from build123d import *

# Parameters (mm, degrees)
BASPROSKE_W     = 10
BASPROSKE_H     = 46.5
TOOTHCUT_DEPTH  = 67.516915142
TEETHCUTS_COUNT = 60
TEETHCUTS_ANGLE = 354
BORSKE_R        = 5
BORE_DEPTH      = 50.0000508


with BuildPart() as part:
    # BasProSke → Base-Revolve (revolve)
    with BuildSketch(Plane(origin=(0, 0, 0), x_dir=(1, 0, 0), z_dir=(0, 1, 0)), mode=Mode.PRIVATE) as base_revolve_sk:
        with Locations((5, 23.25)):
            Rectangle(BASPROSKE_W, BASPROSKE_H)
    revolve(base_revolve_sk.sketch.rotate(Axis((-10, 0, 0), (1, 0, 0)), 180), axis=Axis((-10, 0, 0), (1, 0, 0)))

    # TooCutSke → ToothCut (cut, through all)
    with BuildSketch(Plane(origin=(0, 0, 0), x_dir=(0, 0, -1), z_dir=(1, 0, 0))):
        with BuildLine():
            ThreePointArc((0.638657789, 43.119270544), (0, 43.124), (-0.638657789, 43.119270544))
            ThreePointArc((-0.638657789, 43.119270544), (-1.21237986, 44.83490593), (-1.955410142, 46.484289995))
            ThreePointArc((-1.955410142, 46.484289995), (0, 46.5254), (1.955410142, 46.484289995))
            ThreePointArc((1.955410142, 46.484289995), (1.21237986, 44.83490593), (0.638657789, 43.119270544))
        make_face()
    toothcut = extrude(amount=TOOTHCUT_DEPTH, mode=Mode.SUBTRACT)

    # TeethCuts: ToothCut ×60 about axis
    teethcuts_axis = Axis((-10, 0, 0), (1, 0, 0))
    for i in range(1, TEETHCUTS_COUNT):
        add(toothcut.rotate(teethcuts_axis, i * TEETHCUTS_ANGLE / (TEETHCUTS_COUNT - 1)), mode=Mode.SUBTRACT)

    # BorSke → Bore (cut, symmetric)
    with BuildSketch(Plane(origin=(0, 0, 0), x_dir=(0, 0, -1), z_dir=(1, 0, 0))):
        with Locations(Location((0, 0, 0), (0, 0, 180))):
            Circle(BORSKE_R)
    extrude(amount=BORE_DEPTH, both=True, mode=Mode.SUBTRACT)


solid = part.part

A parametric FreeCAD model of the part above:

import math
import FreeCAD as App
import Part
import Sketcher
Q = App.Units.Quantity


def add_polygon(sketch, points):
    """Adds a closed chain of lines whose ends are joined by coincident constraints."""
    first, n = sketch.GeometryCount, len(points)
    for a, b in zip(points, points[1:] + points[:1]):
        sketch.addGeometry(Part.LineSegment(App.Vector(*a, 0), App.Vector(*b, 0)), False)
    for i in range(n):
        sketch.addConstraint(Sketcher.Constraint("Coincident", first + i, 2, first + (i + 1) % n, 1))

doc = App.newDocument("Part")
params = doc.addObject("Spreadsheet::Sheet", "Params")
for row, (alias, value) in enumerate([
    ("sketch1_width", "10 mm"),
    ("sketch1_height", "46.5 mm"),
    ("revolution_angle", "360 deg"),
    ("sketch2_radius", "18 mm"),
    ("sketch3_diameter", "10 mm"),
    ("pocket2_length", "100.000102 mm"),
], start=1):
    params.set(f"A{row}", alias)
    params.set(f"B{row}", "=" + value)
    params.setAlias(f"B{row}", alias)

body = doc.addObject("PartDesign::Body", "Body")

# Sketch on XZ plane
sketch1 = body.newObject("Sketcher::SketchObject", "Sketch")
sketch1.AttachmentSupport = (doc.getObject("XZ_Plane"), [""])
sketch1.MapMode = "FlatFace"
add_polygon(sketch1, [(0, -46.5), (0, 0), (10, 0), (10, -46.5)])  # lines 0-3
sketch1.addConstraint(Sketcher.Constraint("Vertical", 0))
sketch1.addConstraint(Sketcher.Constraint("Horizontal", 1))
sketch1.addConstraint(Sketcher.Constraint("Vertical", 2))
sketch1.addConstraint(Sketcher.Constraint("Horizontal", 3))
sketch1.addConstraint(Sketcher.Constraint("Coincident", 0, 2, -1, 1))
sketch1.addConstraint(Sketcher.Constraint("DistanceX", 1, 1, 1, 2, Q("10 mm")))
sketch1.addConstraint(Sketcher.Constraint("DistanceY", 0, 1, 0, 2, Q("46.5 mm")))
sketch1.setExpression("Constraints[9]", "Params.sketch1_width")
sketch1.setExpression("Constraints[10]", "Params.sketch1_height")
revolution = body.newObject("PartDesign::Revolution", "Revolution")
revolution.Profile = sketch1
revolution.ReferenceAxis = (sketch1, ["H_Axis"])
revolution.setExpression("Angle", "Params.revolution_angle")

# Sketch on YZ plane
sketch2 = body.newObject("Sketcher::SketchObject", "Sketch001")
sketch2.AttachmentSupport = (doc.getObject("YZ_Plane"), [""])
sketch2.MapMode = "FlatFace"
sketch2.addGeometry(Part.ArcOfCircle(Part.Circle(App.Vector(-0.000002, 0, 0), App.Vector(0, 0, 1), 43.124002), math.radians(-0.84857), math.radians(0.84857)), False)
sketch2.addGeometry(Part.ArcOfCircle(Part.Circle(App.Vector(38.275693, -17.974741, 0), App.Vector(0, 0, 1), 18), math.radians(62.868572), math.radians(74.390018)), False)
sketch2.addGeometry(Part.ArcOfCircle(Part.Circle(App.Vector(0, 0, 0), App.Vector(0, 0, 1), 46.5254), math.radians(-2.408787), math.radians(2.408787)), False)
sketch2.addGeometry(Part.ArcOfCircle(Part.Circle(App.Vector(38.275693, 17.974741, 0), App.Vector(0, 0, 1), 18), math.radians(-74.390018), math.radians(-62.868572)), False)
sketch2.addConstraint(Sketcher.Constraint("Coincident", 0, 1, 1, 2))
sketch2.addConstraint(Sketcher.Constraint("Coincident", 1, 1, 2, 1))
sketch2.addConstraint(Sketcher.Constraint("Coincident", 2, 2, 3, 2))
sketch2.addConstraint(Sketcher.Constraint("Coincident", 3, 1, 0, 2))
sketch2.addConstraint(Sketcher.Constraint("Coincident", 0, 3, -1, 1))
sketch2.addConstraint(Sketcher.Constraint("Coincident", 2, 3, -1, 1))
sketch2.addConstraint(Sketcher.Constraint("Equal", 1, 3))
sketch2.addConstraint(Sketcher.Constraint("Symmetric", 1, 3, 3, 3, -1))
sketch2.addConstraint(Sketcher.Constraint("Radius", 1, Q("18 mm")))
sketch2.addConstraint(Sketcher.Constraint("Radius", 0, Q("43.124002 mm")))
sketch2.addConstraint(Sketcher.Constraint("Radius", 2, Q("46.5254 mm")))
sketch2.addConstraint(Sketcher.Constraint("DistanceY", 0, 1, 3, 3, Q("18.613398 mm")))
sketch2.addConstraint(Sketcher.Constraint("DistanceY", 1, 3, -1, 1, Q("17.974741 mm")))
sketch2.setExpression("Constraints[8]", "Params.sketch2_radius")
pocket1 = body.newObject("PartDesign::Pocket", "Pocket")
pocket1.Profile = sketch2
pocket1.Type = "ThroughAll"
pocket1.Reversed = True
doc.recompute()

polarpattern = body.newObject("PartDesign::PolarPattern", "PolarPattern")
polarpattern.Originals = [pocket1]
polarpattern.Axis = (doc.getObject("X_Axis"), [""])
polarpattern.Angle = 360
polarpattern.Occurrences = 60
body.Tip = polarpattern

# Sketch on YZ plane
sketch3 = body.newObject("Sketcher::SketchObject", "Sketch002")
sketch3.AttachmentSupport = (doc.getObject("YZ_Plane"), [""])
sketch3.MapMode = "FlatFace"
sketch3.addGeometry(Part.Circle(App.Vector(0, 0, 0), App.Vector(0, 0, 1), 5), False)
sketch3.addConstraint(Sketcher.Constraint("Coincident", 0, 3, -1, 1))
sketch3.addConstraint(Sketcher.Constraint("Diameter", 0, Q("10 mm")))
sketch3.setExpression("Constraints[1]", "Params.sketch3_diameter")
pocket2 = body.newObject("PartDesign::Pocket", "Pocket001")
pocket2.Profile = sketch3
pocket2.setExpression("Length", "Params.pocket2_length")
pocket2.Midplane = True

doc.recompute()
